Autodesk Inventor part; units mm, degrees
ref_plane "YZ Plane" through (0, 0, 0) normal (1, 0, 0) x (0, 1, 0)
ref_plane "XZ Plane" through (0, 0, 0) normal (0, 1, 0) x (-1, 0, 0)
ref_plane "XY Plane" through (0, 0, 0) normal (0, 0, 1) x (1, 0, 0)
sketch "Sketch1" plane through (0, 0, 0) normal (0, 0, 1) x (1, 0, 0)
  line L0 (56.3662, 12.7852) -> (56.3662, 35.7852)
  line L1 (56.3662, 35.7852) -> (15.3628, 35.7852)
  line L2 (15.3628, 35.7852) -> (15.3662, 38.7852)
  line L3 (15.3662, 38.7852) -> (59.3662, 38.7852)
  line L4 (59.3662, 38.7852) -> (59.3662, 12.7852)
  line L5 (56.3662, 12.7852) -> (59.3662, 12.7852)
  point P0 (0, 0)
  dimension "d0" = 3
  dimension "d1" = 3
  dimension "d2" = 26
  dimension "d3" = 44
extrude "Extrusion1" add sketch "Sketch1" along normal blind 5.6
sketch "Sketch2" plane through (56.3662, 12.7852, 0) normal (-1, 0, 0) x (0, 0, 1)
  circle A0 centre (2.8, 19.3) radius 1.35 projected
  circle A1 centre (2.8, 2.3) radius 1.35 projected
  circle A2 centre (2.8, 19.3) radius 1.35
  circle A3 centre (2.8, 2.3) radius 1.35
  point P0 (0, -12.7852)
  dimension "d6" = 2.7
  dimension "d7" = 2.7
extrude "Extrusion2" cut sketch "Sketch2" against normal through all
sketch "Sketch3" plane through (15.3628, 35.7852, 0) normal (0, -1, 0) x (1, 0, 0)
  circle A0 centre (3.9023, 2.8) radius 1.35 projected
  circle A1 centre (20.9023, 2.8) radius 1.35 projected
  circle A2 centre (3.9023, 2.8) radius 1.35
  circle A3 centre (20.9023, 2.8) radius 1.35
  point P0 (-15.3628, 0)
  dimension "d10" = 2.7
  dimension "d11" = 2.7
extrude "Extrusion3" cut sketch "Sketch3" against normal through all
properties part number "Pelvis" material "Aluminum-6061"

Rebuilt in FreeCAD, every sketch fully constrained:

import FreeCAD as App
import Part
import Sketcher
Q = App.Units.Quantity

doc = App.newDocument("Part")
params = doc.addObject("Spreadsheet::Sheet", "Params")
for row, (alias, value) in enumerate([
    ("sketch1_width", "3 mm"),
    ("sketch1_width2", "44 mm"),
    ("sketch1_height", "26 mm"),
    ("sketch1_length", "3 mm"),
    ("pad1_length", "5.6 mm"),
    ("sketch2_diameter", "2.7 mm"),
    ("sketch3_diameter", "2.7 mm"),
], start=1):
    params.set(f"A{row}", alias)
    params.set(f"B{row}", "=" + value)
    params.setAlias(f"B{row}", alias)

body = doc.addObject("PartDesign::Body", "Body")

# Sketch on XY plane
sketch1 = body.newObject("Sketcher::SketchObject", "Sketch")
sketch1.AttachmentSupport = (doc.getObject("XY_Plane"), [""])
sketch1.MapMode = "FlatFace"
sketch1.addGeometry(Part.LineSegment(App.Vector(56.3662, 35.7852, 0), App.Vector(56.3662, 12.7852, 0)), False)
sketch1.addGeometry(Part.LineSegment(App.Vector(56.3662, 12.7852, 0), App.Vector(59.3662, 12.7852, 0)), False)
sketch1.addGeometry(Part.LineSegment(App.Vector(59.3662, 12.7852, 0), App.Vector(59.3662, 38.7852, 0)), False)
sketch1.addGeometry(Part.LineSegment(App.Vector(59.3662, 38.7852, 0), App.Vector(15.3662, 38.7852, 0)), False)
sketch1.addGeometry(Part.LineSegment(App.Vector(15.3662, 38.7852, 0), App.Vector(15.3628, 35.7852, 0)), False)
sketch1.addGeometry(Part.LineSegment(App.Vector(15.3628, 35.7852, 0), App.Vector(56.3662, 35.7852, 0)), False)
sketch1.addConstraint(Sketcher.Constraint("Coincident", 0, 2, 1, 1))
sketch1.addConstraint(Sketcher.Constraint("Coincident", 1, 2, 2, 1))
sketch1.addConstraint(Sketcher.Constraint("Coincident", 2, 2, 3, 1))
sketch1.addConstraint(Sketcher.Constraint("Coincident", 3, 2, 4, 1))
sketch1.addConstraint(Sketcher.Constraint("Coincident", 4, 2, 5, 1))
sketch1.addConstraint(Sketcher.Constraint("Coincident", 5, 2, 0, 1))
sketch1.addConstraint(Sketcher.Constraint("Vertical", 0))
sketch1.addConstraint(Sketcher.Constraint("Horizontal", 1))
sketch1.addConstraint(Sketcher.Constraint("Vertical", 2))
sketch1.addConstraint(Sketcher.Constraint("Horizontal", 3))
sketch1.addConstraint(Sketcher.Constraint("Horizontal", 5))
sketch1.addConstraint(Sketcher.Constraint("DistanceX", 1, 1, 1, 2, Q("3 mm")))
sketch1.addConstraint(Sketcher.Constraint("DistanceX", 3, 2, 3, 1, Q("44 mm")))
sketch1.addConstraint(Sketcher.Constraint("DistanceY", 2, 1, 2, 2, Q("26 mm")))
sketch1.addConstraint(Sketcher.Constraint("Distance", 4, Q("3 mm")))
sketch1.addConstraint(Sketcher.Constraint("DistanceX", 5, 1, 5, 2, Q("41.0034 mm")))
sketch1.addConstraint(Sketcher.Constraint("DistanceX", -1, 1, 0, 2, Q("56.3662 mm")))
sketch1.addConstraint(Sketcher.Constraint("DistanceY", -1, 1, 0, 2, Q("12.7852 mm")))
sketch1.setExpression("Constraints[11]", "Params.sketch1_width")
sketch1.setExpression("Constraints[12]", "Params.sketch1_width2")
sketch1.setExpression("Constraints[13]", "Params.sketch1_height")
sketch1.setExpression("Constraints[14]", "Params.sketch1_length")
pad1 = body.newObject("PartDesign::Pad", "Pad")
pad1.Profile = sketch1
pad1.setExpression("Length", "Params.pad1_length")

# Sketch on YZ plane
sketch2 = body.newObject("Sketcher::SketchObject", "Sketch001")
sketch2.AttachmentSupport = (doc.getObject("YZ_Plane"), [""])
sketch2.MapMode = "FlatFace"
sketch2.AttachmentOffset = App.Placement(App.Vector(0, 0, 56.3662), App.Rotation())
sketch2.addGeometry(Part.Circle(App.Vector(32.0852, 2.8, 0), App.Vector(0, 0, 1), 1.35), False)
sketch2.addGeometry(Part.Circle(App.Vector(15.0852, 2.8, 0), App.Vector(0, 0, 1), 1.35), False)
sketch2.addConstraint(Sketcher.Constraint("Equal", 0, 1))
sketch2.addConstraint(Sketcher.Constraint("Horizontal", 0, 3, 1, 3))
sketch2.addConstraint(Sketcher.Constraint("Diameter", 0, Q("2.7 mm")))
sketch2.addConstraint(Sketcher.Constraint("DistanceX", 1, 3, 0, 3, Q("17 mm")))
sketch2.addConstraint(Sketcher.Constraint("DistanceY", -1, 1, 0, 3, Q("2.8 mm")))
sketch2.addConstraint(Sketcher.Constraint("DistanceX", -1, 1, 0, 3, Q("32.0852 mm")))
sketch2.setExpression("Constraints[2]", "Params.sketch2_diameter")
pocket1 = body.newObject("PartDesign::Pocket", "Pocket")
pocket1.Profile = sketch2
pocket1.Type = "ThroughAll"
pocket1.Reversed = True

# Sketch on XZ plane
sketch3 = body.newObject("Sketcher::SketchObject", "Sketch002")
sketch3.AttachmentSupport = (doc.getObject("XZ_Plane"), [""])
sketch3.MapMode = "FlatFace"
sketch3.AttachmentOffset = App.Placement(App.Vector(0, 0, -35.7852), App.Rotation())
sketch3.addGeometry(Part.Circle(App.Vector(19.2651, 2.8, 0), App.Vector(0, 0, 1), 1.35), False)
sketch3.addGeometry(Part.Circle(App.Vector(36.2651, 2.8, 0), App.Vector(0, 0, 1), 1.35), False)
sketch3.addConstraint(Sketcher.Constraint("Equal", 0, 1))
sketch3.addConstraint(Sketcher.Constraint("Horizontal", 0, 3, 1, 3))
sketch3.addConstraint(Sketcher.Constraint("Diameter", 0, Q("2.7 mm")))
sketch3.addConstraint(Sketcher.Constraint("DistanceX", 0, 3, 1, 3, Q("17 mm")))
sketch3.addConstraint(Sketcher.Constraint("DistanceY", -1, 1, 0, 3, Q("2.8 mm")))
sketch3.addConstraint(Sketcher.Constraint("DistanceX", -1, 1, 0, 3, Q("19.265 mm")))
sketch3.setExpression("Constraints[2]", "Params.sketch3_diameter")
pocket2 = body.newObject("PartDesign::Pocket", "Pocket001")
pocket2.Profile = sketch3
pocket2.Type = "ThroughAll"

doc.recompute()
